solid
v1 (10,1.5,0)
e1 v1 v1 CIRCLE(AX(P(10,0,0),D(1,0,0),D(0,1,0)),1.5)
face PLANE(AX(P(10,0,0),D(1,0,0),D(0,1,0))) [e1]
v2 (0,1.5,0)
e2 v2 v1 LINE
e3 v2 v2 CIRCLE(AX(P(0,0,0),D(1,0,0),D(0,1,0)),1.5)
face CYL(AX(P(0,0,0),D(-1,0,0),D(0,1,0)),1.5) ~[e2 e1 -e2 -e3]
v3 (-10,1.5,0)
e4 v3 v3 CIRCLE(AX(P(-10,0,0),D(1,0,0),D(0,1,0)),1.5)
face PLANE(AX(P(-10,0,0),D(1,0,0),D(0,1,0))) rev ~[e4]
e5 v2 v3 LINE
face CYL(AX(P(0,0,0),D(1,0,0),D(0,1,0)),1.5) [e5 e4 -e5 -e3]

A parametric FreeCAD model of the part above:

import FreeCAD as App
import Part
import Sketcher
from FreeCAD import Vector

doc = App.newDocument("Part")
body = doc.addObject("PartDesign::Body", "Body")

# Sketch on YZ plane
sketch1 = doc.addObject("Sketcher::SketchObject", "Sketch")
body.addObject(sketch1)
sketch1.AttachmentSupport = (doc.YZ_Plane, [""])
sketch1.MapMode = "FlatFace"
sketch1.addGeometry(Part.Circle(Vector(0, 0, 0), Vector(0, 0, 1), 1.5), False)
sketch1.addConstraint([
    Sketcher.Constraint("Coincident", 0, 3, -1, 1),
    Sketcher.Constraint("Diameter", 0, 3.0),
])
pad1 = doc.addObject("PartDesign::Pad", "Pad")
body.addObject(pad1)
pad1.Profile = sketch1
pad1.Length = 20
pad1.Midplane = True

doc.recompute()
